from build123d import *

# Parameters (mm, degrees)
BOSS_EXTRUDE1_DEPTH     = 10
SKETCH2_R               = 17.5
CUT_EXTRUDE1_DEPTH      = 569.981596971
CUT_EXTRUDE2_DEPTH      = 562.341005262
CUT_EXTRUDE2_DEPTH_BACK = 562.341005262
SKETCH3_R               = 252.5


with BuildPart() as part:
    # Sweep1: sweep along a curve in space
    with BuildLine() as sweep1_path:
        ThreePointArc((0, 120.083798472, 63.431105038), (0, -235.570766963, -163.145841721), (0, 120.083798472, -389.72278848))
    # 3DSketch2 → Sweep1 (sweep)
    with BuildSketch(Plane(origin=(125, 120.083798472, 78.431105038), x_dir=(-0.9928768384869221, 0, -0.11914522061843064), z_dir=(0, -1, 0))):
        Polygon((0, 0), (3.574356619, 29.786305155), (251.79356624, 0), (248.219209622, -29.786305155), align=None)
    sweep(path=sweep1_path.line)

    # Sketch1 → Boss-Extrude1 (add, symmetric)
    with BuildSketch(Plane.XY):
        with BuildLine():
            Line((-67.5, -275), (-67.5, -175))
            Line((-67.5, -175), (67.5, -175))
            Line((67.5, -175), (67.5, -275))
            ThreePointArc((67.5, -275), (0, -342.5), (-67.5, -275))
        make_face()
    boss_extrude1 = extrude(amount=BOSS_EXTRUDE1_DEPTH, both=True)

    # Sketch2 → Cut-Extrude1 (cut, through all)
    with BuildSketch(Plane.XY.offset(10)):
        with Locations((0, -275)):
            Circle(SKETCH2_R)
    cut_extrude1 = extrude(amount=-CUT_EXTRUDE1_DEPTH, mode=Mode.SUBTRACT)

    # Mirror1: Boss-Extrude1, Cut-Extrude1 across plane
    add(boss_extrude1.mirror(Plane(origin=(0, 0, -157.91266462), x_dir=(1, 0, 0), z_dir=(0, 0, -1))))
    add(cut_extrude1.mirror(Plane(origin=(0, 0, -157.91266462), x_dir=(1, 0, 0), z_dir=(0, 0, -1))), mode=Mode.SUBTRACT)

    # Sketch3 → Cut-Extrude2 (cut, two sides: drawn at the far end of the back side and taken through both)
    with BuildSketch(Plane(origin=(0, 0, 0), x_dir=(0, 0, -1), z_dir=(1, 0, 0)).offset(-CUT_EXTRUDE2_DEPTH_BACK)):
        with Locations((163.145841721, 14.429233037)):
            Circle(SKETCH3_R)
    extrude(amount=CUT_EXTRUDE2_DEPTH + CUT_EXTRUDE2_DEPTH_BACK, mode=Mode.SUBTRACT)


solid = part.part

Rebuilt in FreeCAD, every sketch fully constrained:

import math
import FreeCAD as App
import Part
import Sketcher
from FreeCAD import Vector


def add_polygon(sketch, points):
    """Adds a closed chain of lines whose ends are joined by coincident constraints."""
    first, n = sketch.GeometryCount, len(points)
    for a, b in zip(points, points[1:] + points[:1]):
        sketch.addGeometry(Part.LineSegment(App.Vector(*a, 0), App.Vector(*b, 0)), False)
    for i in range(n):
        sketch.addConstraint(Sketcher.Constraint("Coincident", first + i, 2, first + (i + 1) % n, 1))

doc = App.newDocument("Part")
params = doc.addObject("Spreadsheet::Sheet", "Params")
for row, (alias, value) in enumerate([
    ("sketch1_width", "250 mm"),
    ("sketch1_height", "30 mm"),
    ("sketch2_radius", "250 mm"),
    ("sketch3_radius", "67.5 mm"),
    ("sketch3_height", "100 mm"),
    ("pad1_length", "20 mm"),
    ("sketch4_diameter", "35 mm"),
    ("sketch5_diameter", "505 mm"),
], start=1):
    params.set(f"A{row}", alias)
    params.set(f"B{row}", "=" + value)
    params.setAlias(f"B{row}", alias)

body = doc.addObject("PartDesign::Body", "Body")

# Sketch on XZ plane
sketch1 = doc.addObject("Sketcher::SketchObject", "Sketch")
body.addObject(sketch1)
sketch1.AttachmentSupport = (doc.XZ_Plane, [""])
sketch1.MapMode = "FlatFace"
sketch1.AttachmentOffset = App.Placement(Vector(0, 0, -120.083798), App.Rotation())
add_polygon(sketch1, [(125, 48.431105), (125, 78.431105), (-125, 78.431105), (-125, 48.431105)])  # lines 0-3
sketch1.addConstraint([
    Sketcher.Constraint("Vertical", 0),
    Sketcher.Constraint("Horizontal", 1),
    Sketcher.Constraint("Vertical", 2),
    Sketcher.Constraint("Horizontal", 3),
    Sketcher.Constraint("DistanceX", 1, 2, 1, 1, 250.0),
    Sketcher.Constraint("DistanceY", 0, 1, 0, 2, 30.0),
    Sketcher.Constraint("DistanceX", -1, 1, 0, 2, 125.0),
    Sketcher.Constraint("DistanceY", -1, 1, 0, 2, 78.431105),
])
sketch1.setExpression("Constraints[8]", "Params.sketch1_width")
sketch1.setExpression("Constraints[9]", "Params.sketch1_height")

# Sketch on YZ plane
sketch2 = doc.addObject("Sketcher::SketchObject", "Sketch001")
body.addObject(sketch2)
sketch2.AttachmentSupport = (doc.YZ_Plane, [""])
sketch2.MapMode = "FlatFace"
sketch2.addGeometry(Part.ArcOfCircle(Part.Circle(Vector(14.429233, -163.145842, 0), Vector(0, 0, 1), 250), math.radians(65), math.radians(295)), False)
sketch2.addConstraint([
    Sketcher.Constraint("Radius", 0, 250.0),
    Sketcher.Constraint("DistanceX", -1, 1, 0, 1, 120.083798),
    Sketcher.Constraint("DistanceX", -1, 1, 0, 2, 120.083798),
    Sketcher.Constraint("DistanceY", 0, 3, -1, 1, 163.145842),
    Sketcher.Constraint("DistanceY", 0, 2, -1, 1, 389.722788),
])
sketch2.setExpression("Constraints[0]", "Params.sketch2_radius")
doc.recompute()

additivepipe = doc.addObject("PartDesign::AdditivePipe", "AdditivePipe")
body.addObject(additivepipe)
additivepipe.Profile = sketch1
additivepipe.Spine = (sketch2, ["Edge1"])

# Sketch on XY plane
sketch3 = doc.addObject("Sketcher::SketchObject", "Sketch002")
body.addObject(sketch3)
sketch3.AttachmentSupport = (doc.XY_Plane, [""])
sketch3.MapMode = "FlatFace"
sketch3.addGeometry([
    Part.LineSegment(Vector(-67.5, -175, 0), Vector(-67.5, -275, 0)),
    Part.ArcOfCircle(Part.Circle(Vector(0, -275, 0), Vector(0, 0, 1), 67.5), math.radians(180), math.radians(360)),
    Part.LineSegment(Vector(67.5, -275, 0), Vector(67.5, -175, 0)),
    Part.LineSegment(Vector(67.5, -175, 0), Vector(-67.5, -175, 0)),
], False)
sketch3.addConstraint([
    Sketcher.Constraint("Tangent", 0, 2, 1, 1),
    Sketcher.Constraint("Tangent", 1, 2, 2, 1),
    Sketcher.Constraint("Coincident", 2, 2, 3, 1),
    Sketcher.Constraint("Coincident", 3, 2, 0, 1),
    Sketcher.Constraint("Vertical", 0),
    Sketcher.Constraint("Vertical", 2),
    Sketcher.Constraint("Horizontal", 3),
    Sketcher.Constraint("PointOnObject", 1, 3, -2),
    Sketcher.Constraint("Radius", 1, 67.5),
    Sketcher.Constraint("DistanceY", 0, 2, 0, 1, 100.0),
    Sketcher.Constraint("DistanceY", 1, 3, -1, 1, 275.0),
])
sketch3.setExpression("Constraints[8]", "Params.sketch3_radius")
sketch3.setExpression("Constraints[9]", "Params.sketch3_height")
pad1 = doc.addObject("PartDesign::Pad", "Pad")
body.addObject(pad1)
pad1.Profile = sketch3
pad1.setExpression("Length", "Params.pad1_length")
pad1.Midplane = True

# Sketch on XY plane
sketch4 = doc.addObject("Sketcher::SketchObject", "Sketch003")
body.addObject(sketch4)
sketch4.AttachmentSupport = (doc.XY_Plane, [""])
sketch4.MapMode = "FlatFace"
sketch4.AttachmentOffset = App.Placement(Vector(0, 0, 10), App.Rotation())
sketch4.addGeometry(Part.Circle(Vector(0, -275, 0), Vector(0, 0, 1), 17.5), False)
sketch4.addConstraint([
    Sketcher.Constraint("PointOnObject", 0, 3, -2),
    Sketcher.Constraint("Diameter", 0, 35.0),
    Sketcher.Constraint("DistanceY", 0, 3, -1, 1, 275.0),
])
sketch4.setExpression("Constraints[1]", "Params.sketch4_diameter")
pocket1 = doc.addObject("PartDesign::Pocket", "Pocket")
body.addObject(pocket1)
pocket1.Profile = sketch4
pocket1.Type = "ThroughAll"
doc.recompute()

datumplane = doc.addObject("PartDesign::Plane", "DatumPlane")
body.addObject(datumplane)
datumplane.AttachmentSupport = (doc.XY_Plane, [""])
datumplane.MapMode = "FlatFace"
datumplane.AttachmentOffset = App.Placement(Vector(0, 0, -157.912665), App.Rotation())
mirrored = doc.addObject("PartDesign::Mirrored", "Mirrored")
body.addObject(mirrored)
mirrored.Originals = [pad1, pocket1]
mirrored.MirrorPlane = (datumplane, [""])
body.Tip = mirrored

# Sketch on YZ plane
sketch5 = doc.addObject("Sketcher::SketchObject", "Sketch004")
body.addObject(sketch5)
sketch5.AttachmentSupport = (doc.YZ_Plane, [""])
sketch5.MapMode = "FlatFace"
sketch5.addGeometry(Part.Circle(Vector(14.429233, -163.145842, 0), Vector(0, 0, 1), 252.5), False)
sketch5.addConstraint([
    Sketcher.Constraint("Diameter", 0, 505.0),
    Sketcher.Constraint("DistanceY", 0, 3, -1, 1, 163.145842),
    Sketcher.Constraint("DistanceX", -1, 1, 0, 3, 14.429233),
])
sketch5.setExpression("Constraints[0]", "Params.sketch5_diameter")
pocket2 = doc.addObject("PartDesign::Pocket", "Pocket001")
body.addObject(pocket2)
pocket2.Profile = sketch5
pocket2.Type = "ThroughAll"
pocket2.Midplane = True

doc.recompute()
